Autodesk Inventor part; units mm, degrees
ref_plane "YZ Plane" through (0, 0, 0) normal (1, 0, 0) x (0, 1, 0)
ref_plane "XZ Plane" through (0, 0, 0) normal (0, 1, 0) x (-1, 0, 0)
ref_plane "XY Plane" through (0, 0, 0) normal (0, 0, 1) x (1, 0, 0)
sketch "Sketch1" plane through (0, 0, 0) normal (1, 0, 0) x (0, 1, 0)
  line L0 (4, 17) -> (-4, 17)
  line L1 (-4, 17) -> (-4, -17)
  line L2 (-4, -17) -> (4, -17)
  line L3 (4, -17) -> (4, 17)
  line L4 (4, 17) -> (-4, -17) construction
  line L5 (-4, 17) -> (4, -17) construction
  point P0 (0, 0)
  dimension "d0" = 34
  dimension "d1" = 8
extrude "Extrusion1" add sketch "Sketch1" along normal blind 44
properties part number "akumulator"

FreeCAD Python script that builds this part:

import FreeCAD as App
import Part
import Sketcher
from FreeCAD import Vector

doc = App.newDocument("Part")
body = doc.addObject("PartDesign::Body", "Body")

sketch1 = body.newObject("Sketcher::SketchObject", "Sketch")
sketch1.AttachmentSupport = (doc.getObject("YZ_Plane"), [""])
sketch1.MapMode = "FlatFace"
sketch1.addGeometry(Part.LineSegment(Vector(4, -17, 0), Vector(4, 17, 0)), False)
sketch1.addGeometry(Part.LineSegment(Vector(4, 17, 0), Vector(-4, 17, 0)), False)
sketch1.addGeometry(Part.LineSegment(Vector(-4, 17, 0), Vector(-4, -17, 0)), False)
sketch1.addGeometry(Part.LineSegment(Vector(-4, -17, 0), Vector(4, -17, 0)), False)
sketch1.addConstraint(Sketcher.Constraint("Coincident", 0, 2, 1, 1))
sketch1.addConstraint(Sketcher.Constraint("Coincident", 1, 2, 2, 1))
sketch1.addConstraint(Sketcher.Constraint("Coincident", 2, 2, 3, 1))
sketch1.addConstraint(Sketcher.Constraint("Coincident", 3, 2, 0, 1))
sketch1.addConstraint(Sketcher.Constraint("Vertical", 0))
sketch1.addConstraint(Sketcher.Constraint("Horizontal", 1))
sketch1.addConstraint(Sketcher.Constraint("Vertical", 2))
sketch1.addConstraint(Sketcher.Constraint("Horizontal", 3))
sketch1.addConstraint(Sketcher.Constraint("Symmetric", 0, 2, 2, 2, -1, 1))
sketch1.addConstraint(Sketcher.Constraint("DistanceX", 1, 2, 1, 1, 8.0))
sketch1.addConstraint(Sketcher.Constraint("DistanceY", 0, 1, 0, 2, 34.0))
pad1 = body.newObject("PartDesign::Pad", "Pad")
pad1.Profile = sketch1
pad1.Length = 44

doc.recompute()
